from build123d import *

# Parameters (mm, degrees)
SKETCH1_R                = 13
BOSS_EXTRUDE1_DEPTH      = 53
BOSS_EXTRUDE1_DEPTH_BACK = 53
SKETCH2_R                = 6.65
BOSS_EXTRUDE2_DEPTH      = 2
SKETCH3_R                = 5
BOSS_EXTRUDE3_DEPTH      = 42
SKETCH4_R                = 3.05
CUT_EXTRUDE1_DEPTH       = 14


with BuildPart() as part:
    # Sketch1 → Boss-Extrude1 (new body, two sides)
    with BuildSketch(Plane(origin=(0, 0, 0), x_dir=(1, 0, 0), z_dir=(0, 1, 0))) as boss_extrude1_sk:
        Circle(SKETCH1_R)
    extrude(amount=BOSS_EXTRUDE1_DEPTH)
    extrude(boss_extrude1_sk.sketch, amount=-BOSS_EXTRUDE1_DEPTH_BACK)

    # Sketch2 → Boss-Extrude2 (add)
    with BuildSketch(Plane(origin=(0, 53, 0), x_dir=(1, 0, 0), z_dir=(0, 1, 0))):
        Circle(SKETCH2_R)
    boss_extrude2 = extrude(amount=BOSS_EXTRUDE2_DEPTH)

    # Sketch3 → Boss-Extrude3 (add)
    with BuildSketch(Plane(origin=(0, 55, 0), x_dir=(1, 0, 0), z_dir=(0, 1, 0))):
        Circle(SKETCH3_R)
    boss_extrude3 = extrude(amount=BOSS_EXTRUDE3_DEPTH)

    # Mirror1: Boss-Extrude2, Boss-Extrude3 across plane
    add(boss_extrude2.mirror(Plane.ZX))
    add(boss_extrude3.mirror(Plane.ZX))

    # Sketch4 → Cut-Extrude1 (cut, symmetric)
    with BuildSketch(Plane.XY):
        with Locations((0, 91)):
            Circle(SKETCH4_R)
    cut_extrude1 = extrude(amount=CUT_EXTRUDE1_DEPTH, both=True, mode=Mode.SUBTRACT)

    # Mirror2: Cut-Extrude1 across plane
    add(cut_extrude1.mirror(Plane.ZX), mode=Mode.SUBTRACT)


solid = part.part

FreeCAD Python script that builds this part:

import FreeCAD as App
import Part
import Sketcher
Q = App.Units.Quantity

doc = App.newDocument("Part")
body = doc.addObject("PartDesign::Body", "Body")

# Sketch on XZ plane
sketch1 = doc.addObject("Sketcher::SketchObject", "Sketch")
body.addObject(sketch1)
sketch1.AttachmentSupport = (doc.XZ_Plane, [""])
sketch1.MapMode = "FlatFace"
sketch1.addGeometry(Part.Circle(App.Vector(0, 0, 0), App.Vector(0, 0, 1), 13), False)
sketch1.addConstraint(Sketcher.Constraint("Coincident", 0, 3, -1, 1))
sketch1.addConstraint(Sketcher.Constraint("Diameter", 0, Q("26 mm")))
pad1 = doc.addObject("PartDesign::Pad", "Pad")
body.addObject(pad1)
pad1.Profile = sketch1
pad1.Type = "TwoLengths"
pad1.Length = 53
pad1.Length2 = 53
pad1.Reversed = True

# Sketch on XZ plane
sketch2 = doc.addObject("Sketcher::SketchObject", "Sketch001")
body.addObject(sketch2)
sketch2.AttachmentSupport = (doc.XZ_Plane, [""])
sketch2.MapMode = "FlatFace"
sketch2.AttachmentOffset = App.Placement(App.Vector(0, 0, -53), App.Rotation())
sketch2.addGeometry(Part.Circle(App.Vector(0, 0, 0), App.Vector(0, 0, 1), 7), False)
sketch2.addConstraint(Sketcher.Constraint("Coincident", 0, 3, -1, 1))
sketch2.addConstraint(Sketcher.Constraint("Diameter", 0, Q("13.3 mm")))
pad2 = doc.addObject("PartDesign::Pad", "Pad001")
body.addObject(pad2)
pad2.Profile = sketch2
pad2.Length = 2
pad2.Reversed = True

# Sketch on XZ plane
sketch3 = doc.addObject("Sketcher::SketchObject", "Sketch002")
body.addObject(sketch3)
sketch3.AttachmentSupport = (doc.XZ_Plane, [""])
sketch3.MapMode = "FlatFace"
sketch3.AttachmentOffset = App.Placement(App.Vector(0, 0, -55), App.Rotation())
sketch3.addGeometry(Part.Circle(App.Vector(0, 0, 0), App.Vector(0, 0, 1), 5), False)
sketch3.addConstraint(Sketcher.Constraint("Coincident", 0, 3, -1, 1))
sketch3.addConstraint(Sketcher.Constraint("Diameter", 0, Q("10 mm")))
pad3 = doc.addObject("PartDesign::Pad", "Pad002")
body.addObject(pad3)
pad3.Profile = sketch3
pad3.Length = 42
pad3.Reversed = True
doc.recompute()

mirrored = doc.addObject("PartDesign::Mirrored", "Mirrored")
body.addObject(mirrored)
mirrored.Originals = [pad2, pad3]
mirrored.MirrorPlane = (doc.XZ_Plane, [""])
body.Tip = mirrored

# Sketch on XY plane
sketch4 = doc.addObject("Sketcher::SketchObject", "Sketch003")
body.addObject(sketch4)
sketch4.AttachmentSupport = (doc.XY_Plane, [""])
sketch4.MapMode = "FlatFace"
sketch4.addGeometry(Part.Circle(App.Vector(0, 91, 0), App.Vector(0, 0, 1), 3), False)
sketch4.addConstraint(Sketcher.Constraint("PointOnObject", 0, 3, -2))
sketch4.addConstraint(Sketcher.Constraint("Diameter", 0, Q("6.1 mm")))
sketch4.addConstraint(Sketcher.Constraint("DistanceY", -1, 1, 0, 3, Q("91 mm")))
pocket1 = doc.addObject("PartDesign::Pocket", "Pocket")
body.addObject(pocket1)
pocket1.Profile = sketch4
pocket1.Length = 28
pocket1.Midplane = True
doc.recompute()

mirrored2 = doc.addObject("PartDesign::Mirrored", "Mirrored001")
body.addObject(mirrored2)
mirrored2.Originals = [pocket1]
mirrored2.MirrorPlane = (doc.XZ_Plane, [""])
body.Tip = mirrored2

doc.recompute()
